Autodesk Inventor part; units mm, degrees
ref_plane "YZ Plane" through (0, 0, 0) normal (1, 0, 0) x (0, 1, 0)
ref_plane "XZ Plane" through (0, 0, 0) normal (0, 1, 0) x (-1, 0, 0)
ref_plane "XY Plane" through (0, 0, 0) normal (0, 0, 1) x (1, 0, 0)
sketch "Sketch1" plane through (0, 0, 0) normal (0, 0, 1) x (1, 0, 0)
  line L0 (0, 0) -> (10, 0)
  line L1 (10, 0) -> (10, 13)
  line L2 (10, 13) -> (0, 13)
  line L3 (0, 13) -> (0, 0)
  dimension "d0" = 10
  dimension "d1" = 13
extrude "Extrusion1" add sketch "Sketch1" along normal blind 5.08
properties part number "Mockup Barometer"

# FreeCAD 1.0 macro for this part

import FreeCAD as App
import Part
import Sketcher
from FreeCAD import Vector
Q = App.Units.Quantity

doc = App.newDocument("Part")
body = doc.addObject("PartDesign::Body", "Body")

# Sketch on XY plane
sketch1 = body.newObject("Sketcher::SketchObject", "Sketch")
sketch1.AttachmentSupport = (doc.getObject("XY_Plane"), [""])
sketch1.MapMode = "FlatFace"
sketch1.addGeometry([
    Part.LineSegment(Vector(0, 13, 0), Vector(0, 0, 0)),
    Part.LineSegment(Vector(0, 0, 0), Vector(10, 0, 0)),
    Part.LineSegment(Vector(10, 0, 0), Vector(10, 13, 0)),
    Part.LineSegment(Vector(10, 13, 0), Vector(0, 13, 0)),
], False)
sketch1.addConstraint([
    Sketcher.Constraint("Coincident", 0, 2, 1, 1),
    Sketcher.Constraint("Coincident", 1, 2, 2, 1),
    Sketcher.Constraint("Coincident", 2, 2, 3, 1),
    Sketcher.Constraint("Coincident", 3, 2, 0, 1),
    Sketcher.Constraint("Vertical", 0),
    Sketcher.Constraint("Horizontal", 1),
    Sketcher.Constraint("Vertical", 2),
    Sketcher.Constraint("Horizontal", 3),
    Sketcher.Constraint("Coincident", 0, 2, -1, 1),
    Sketcher.Constraint("DistanceX", 1, 1, 1, 2, Q("0.3937 in")),
    Sketcher.Constraint("DistanceY", 0, 2, 0, 1, Q("0.5118 in")),
])
pad1 = body.newObject("PartDesign::Pad", "Pad")
pad1.Profile = sketch1
pad1.Length = Q("0.2 in")

doc.recompute()
